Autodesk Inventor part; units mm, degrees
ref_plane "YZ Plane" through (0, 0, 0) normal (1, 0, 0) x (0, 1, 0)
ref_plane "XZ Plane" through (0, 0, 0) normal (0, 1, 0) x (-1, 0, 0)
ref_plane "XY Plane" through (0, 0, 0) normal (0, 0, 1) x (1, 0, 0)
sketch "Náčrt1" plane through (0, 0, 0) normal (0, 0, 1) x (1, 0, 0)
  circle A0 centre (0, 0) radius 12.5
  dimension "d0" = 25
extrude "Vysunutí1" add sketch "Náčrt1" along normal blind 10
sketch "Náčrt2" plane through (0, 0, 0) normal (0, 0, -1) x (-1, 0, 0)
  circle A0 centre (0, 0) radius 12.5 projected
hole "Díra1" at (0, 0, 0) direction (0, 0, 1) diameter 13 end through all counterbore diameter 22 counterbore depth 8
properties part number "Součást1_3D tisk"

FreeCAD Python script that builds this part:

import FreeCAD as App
import Part
import Sketcher
Q = App.Units.Quantity

doc = App.newDocument("Part")
body = doc.addObject("PartDesign::Body", "Body")

# Sketch on XY plane
sketch1 = body.newObject("Sketcher::SketchObject", "Sketch")
sketch1.AttachmentSupport = (doc.getObject("XY_Plane"), [""])
sketch1.MapMode = "FlatFace"
sketch1.addGeometry(Part.Circle(App.Vector(0, 0, 0), App.Vector(0, 0, 1), 12), False)
sketch1.addConstraint(Sketcher.Constraint("Coincident", 0, 3, -1, 1))
sketch1.addConstraint(Sketcher.Constraint("Diameter", 0, Q("25 mm")))
pad1 = body.newObject("PartDesign::Pad", "Pad")
pad1.Profile = sketch1
pad1.Length = 10

# Sketch on XY plane
sketch2 = body.newObject("Sketcher::SketchObject", "Sketch001")
sketch2.AttachmentSupport = (doc.getObject("XY_Plane"), [""])
sketch2.MapMode = "FlatFace"
sketch2.addGeometry(Part.Circle(App.Vector(0, 0, 0), App.Vector(0, 0, 1), 6), False)
sketch2.addConstraint(Sketcher.Constraint("Coincident", 0, 3, -1, 1))
sketch2.addConstraint(Sketcher.Constraint("Diameter", 0, Q("13 mm")))
doc.recompute()
hole = body.newObject("PartDesign::Hole", "Hole")
hole.Profile = sketch2
hole.ThreadType = "None"
hole.Diameter = 13
hole.DepthType = "ThroughAll"
hole.HoleCutType = "Counterbore"
hole.HoleCutDiameter = 22
hole.HoleCutDepth = 8
hole.Reversed = True

doc.recompute()
